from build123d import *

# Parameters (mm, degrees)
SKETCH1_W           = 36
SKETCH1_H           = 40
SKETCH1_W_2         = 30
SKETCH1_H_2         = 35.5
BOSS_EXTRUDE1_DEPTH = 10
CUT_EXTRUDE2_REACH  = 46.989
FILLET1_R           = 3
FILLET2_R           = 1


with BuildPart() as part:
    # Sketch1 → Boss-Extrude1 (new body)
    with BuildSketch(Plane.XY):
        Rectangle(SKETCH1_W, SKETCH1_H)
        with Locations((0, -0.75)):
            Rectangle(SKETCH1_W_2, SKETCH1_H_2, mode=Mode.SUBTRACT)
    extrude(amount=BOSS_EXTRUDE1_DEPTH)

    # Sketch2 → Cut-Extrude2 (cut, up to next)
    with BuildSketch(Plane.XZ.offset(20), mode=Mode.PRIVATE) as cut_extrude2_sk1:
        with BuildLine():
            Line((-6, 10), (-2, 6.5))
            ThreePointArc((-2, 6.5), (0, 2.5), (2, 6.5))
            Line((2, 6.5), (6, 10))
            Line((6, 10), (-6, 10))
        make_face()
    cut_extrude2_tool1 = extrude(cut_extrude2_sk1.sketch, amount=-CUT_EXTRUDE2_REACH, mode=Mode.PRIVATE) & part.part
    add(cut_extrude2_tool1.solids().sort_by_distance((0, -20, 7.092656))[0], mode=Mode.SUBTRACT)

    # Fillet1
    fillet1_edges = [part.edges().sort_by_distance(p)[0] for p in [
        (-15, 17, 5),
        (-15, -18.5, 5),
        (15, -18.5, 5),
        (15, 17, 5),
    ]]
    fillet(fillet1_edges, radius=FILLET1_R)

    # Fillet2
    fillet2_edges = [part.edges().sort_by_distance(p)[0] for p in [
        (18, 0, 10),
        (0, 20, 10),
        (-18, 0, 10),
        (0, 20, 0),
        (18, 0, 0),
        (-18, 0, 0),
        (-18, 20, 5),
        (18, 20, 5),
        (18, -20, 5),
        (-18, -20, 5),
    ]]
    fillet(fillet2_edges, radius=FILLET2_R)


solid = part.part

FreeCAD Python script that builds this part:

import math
import FreeCAD as App
import Part
import Sketcher
from FreeCAD import Vector
Q = App.Units.Quantity


def edges_at(feature, points):
    """Names of the edges that pass closest to the given points."""
    edges = feature.Shape.Edges
    near = lambda p: min(range(len(edges)), key=lambda i: edges[i].distToShape(Part.Vertex(*p))[0])
    return sorted({f"Edge{near(p) + 1}" for p in points})

doc = App.newDocument("Part")
params = doc.addObject("Spreadsheet::Sheet", "Params")
for row, (alias, value) in enumerate([
    ("sketch1_width", "36 mm"),
    ("sketch1_width2", "30 mm"),
    ("sketch1_height", "40 mm"),
    ("sketch1_height2", "35.5 mm"),
    ("pad1_length", "10 mm"),
    ("sketch2_radius", "2.5 mm"),
    ("sketch2_width", "12 mm"),
    ("fillet_radius", "3 mm"),
    ("fillet2_radius", "1 mm"),
], start=1):
    params.set(f"A{row}", alias)
    params.set(f"B{row}", "=" + value)
    params.setAlias(f"B{row}", alias)

body = doc.addObject("PartDesign::Body", "Body")

# Sketch on XY plane
sketch1 = doc.addObject("Sketcher::SketchObject", "Sketch")
body.addObject(sketch1)
sketch1.AttachmentSupport = (doc.XY_Plane, [""])
sketch1.MapMode = "FlatFace"
sketch1.addGeometry(Part.LineSegment(Vector(-18, 20, 0), Vector(-18, -20, 0)), False)
sketch1.addGeometry(Part.LineSegment(Vector(-18, -20, 0), Vector(18, -20, 0)), False)
sketch1.addGeometry(Part.LineSegment(Vector(18, -20, 0), Vector(18, 20, 0)), False)
sketch1.addGeometry(Part.LineSegment(Vector(18, 20, 0), Vector(-18, 20, 0)), False)
sketch1.addGeometry(Part.LineSegment(Vector(15, -18, 0), Vector(-15, -18, 0)), False)
sketch1.addGeometry(Part.LineSegment(Vector(-15, -18, 0), Vector(-15, 17, 0)), False)
sketch1.addGeometry(Part.LineSegment(Vector(-15, 17, 0), Vector(15, 17, 0)), False)
sketch1.addGeometry(Part.LineSegment(Vector(15, 17, 0), Vector(15, -18, 0)), False)
sketch1.addConstraint(Sketcher.Constraint("Coincident", 0, 2, 1, 1))
sketch1.addConstraint(Sketcher.Constraint("Coincident", 1, 2, 2, 1))
sketch1.addConstraint(Sketcher.Constraint("Coincident", 2, 2, 3, 1))
sketch1.addConstraint(Sketcher.Constraint("Coincident", 3, 2, 0, 1))
sketch1.addConstraint(Sketcher.Constraint("Coincident", 4, 2, 5, 1))
sketch1.addConstraint(Sketcher.Constraint("Coincident", 5, 2, 6, 1))
sketch1.addConstraint(Sketcher.Constraint("Coincident", 6, 2, 7, 1))
sketch1.addConstraint(Sketcher.Constraint("Coincident", 7, 2, 4, 1))
sketch1.addConstraint(Sketcher.Constraint("Vertical", 0))
sketch1.addConstraint(Sketcher.Constraint("Horizontal", 1))
sketch1.addConstraint(Sketcher.Constraint("Vertical", 2))
sketch1.addConstraint(Sketcher.Constraint("Horizontal", 3))
sketch1.addConstraint(Sketcher.Constraint("Horizontal", 4))
sketch1.addConstraint(Sketcher.Constraint("Vertical", 5))
sketch1.addConstraint(Sketcher.Constraint("Horizontal", 6))
sketch1.addConstraint(Sketcher.Constraint("Vertical", 7))
sketch1.addConstraint(Sketcher.Constraint("Symmetric", 0, 2, 2, 2, -1, 1))
sketch1.addConstraint(Sketcher.Constraint("DistanceX", 1, 1, 1, 2, Q("36 mm")))
sketch1.addConstraint(Sketcher.Constraint("DistanceX", 4, 2, 4, 1, Q("30 mm")))
sketch1.addConstraint(Sketcher.Constraint("DistanceY", 0, 2, 0, 1, Q("40 mm")))
sketch1.addConstraint(Sketcher.Constraint("DistanceY", 5, 1, 5, 2, Q("35.5 mm")))
sketch1.addConstraint(Sketcher.Constraint("DistanceX", 4, 2, -1, 1, Q("15 mm")))
sketch1.addConstraint(Sketcher.Constraint("DistanceY", -1, 1, 5, 2, Q("17 mm")))
sketch1.setExpression("Constraints[17]", "Params.sketch1_width")
sketch1.setExpression("Constraints[18]", "Params.sketch1_width2")
sketch1.setExpression("Constraints[19]", "Params.sketch1_height")
sketch1.setExpression("Constraints[20]", "Params.sketch1_height2")
pad1 = doc.addObject("PartDesign::Pad", "Pad")
body.addObject(pad1)
pad1.Profile = sketch1
pad1.setExpression("Length", "Params.pad1_length")

# Sketch on XZ plane
sketch2 = doc.addObject("Sketcher::SketchObject", "Sketch001")
body.addObject(sketch2)
sketch2.AttachmentSupport = (doc.XZ_Plane, [""])
sketch2.MapMode = "FlatFace"
sketch2.AttachmentOffset = App.Placement(Vector(0, 0, 20), App.Rotation())
sketch2.addGeometry(Part.LineSegment(Vector(-6, 10, 0), Vector(-2, 6.5, 0)), False)
sketch2.addGeometry(Part.ArcOfCircle(Part.Circle(Vector(0, 5, 0), Vector(0, 0, 1), 2.5), math.radians(143), math.radians(397)), False)
sketch2.addGeometry(Part.LineSegment(Vector(2, 6.5, 0), Vector(6, 10, 0)), False)
sketch2.addGeometry(Part.LineSegment(Vector(6, 10, 0), Vector(-6, 10, 0)), False)
sketch2.addConstraint(Sketcher.Constraint("Coincident", 0, 2, 1, 1))
sketch2.addConstraint(Sketcher.Constraint("Coincident", 1, 2, 2, 1))
sketch2.addConstraint(Sketcher.Constraint("Coincident", 2, 2, 3, 1))
sketch2.addConstraint(Sketcher.Constraint("Coincident", 3, 2, 0, 1))
sketch2.addConstraint(Sketcher.Constraint("Horizontal", 3))
sketch2.addConstraint(Sketcher.Constraint("Symmetric", 0, 2, 1, 2, -2))
sketch2.addConstraint(Sketcher.Constraint("Equal", 0, 2))
sketch2.addConstraint(Sketcher.Constraint("Radius", 1, Q("2.5 mm")))
sketch2.addConstraint(Sketcher.Constraint("DistanceX", 3, 2, 3, 1, Q("12 mm")))
sketch2.addConstraint(Sketcher.Constraint("DistanceY", -1, 1, 1, 3, Q("5 mm")))
sketch2.addConstraint(Sketcher.Constraint("DistanceX", 0, 2, -1, 1, Q("2 mm")))
sketch2.addConstraint(Sketcher.Constraint("DistanceY", -1, 1, 2, 2, Q("10 mm")))
sketch2.setExpression("Constraints[7]", "Params.sketch2_radius")
sketch2.setExpression("Constraints[8]", "Params.sketch2_width")
pocket1 = doc.addObject("PartDesign::Pocket", "Pocket")
body.addObject(pocket1)
pocket1.Profile = sketch2
pocket1.Type = "UpToFirst"
doc.recompute()

fillet = doc.addObject("PartDesign::Fillet", "Fillet")
body.addObject(fillet)
fillet.Base = (pocket1, edges_at(pocket1, [
    (-15, 17, 5),
    (-15, -18.5, 5),
    (15, -18.5, 5),
    (15, 17, 5),
]))
fillet.setExpression("Radius", "Params.fillet_radius")
doc.recompute()

fillet2 = doc.addObject("PartDesign::Fillet", "Fillet001")
body.addObject(fillet2)
fillet2.Base = (fillet, edges_at(fillet, [
    (18, 0, 10),
    (0, 20, 10),
    (-18, 0, 10),
    (0, 20, 0),
    (18, 0, 0),
    (-18, 0, 0),
    (-18, 20, 5),
    (18, 20, 5),
    (18, -20, 5),
    (-18, -20, 5),
]))
fillet2.setExpression("Radius", "Params.fillet2_radius")

doc.recompute()
